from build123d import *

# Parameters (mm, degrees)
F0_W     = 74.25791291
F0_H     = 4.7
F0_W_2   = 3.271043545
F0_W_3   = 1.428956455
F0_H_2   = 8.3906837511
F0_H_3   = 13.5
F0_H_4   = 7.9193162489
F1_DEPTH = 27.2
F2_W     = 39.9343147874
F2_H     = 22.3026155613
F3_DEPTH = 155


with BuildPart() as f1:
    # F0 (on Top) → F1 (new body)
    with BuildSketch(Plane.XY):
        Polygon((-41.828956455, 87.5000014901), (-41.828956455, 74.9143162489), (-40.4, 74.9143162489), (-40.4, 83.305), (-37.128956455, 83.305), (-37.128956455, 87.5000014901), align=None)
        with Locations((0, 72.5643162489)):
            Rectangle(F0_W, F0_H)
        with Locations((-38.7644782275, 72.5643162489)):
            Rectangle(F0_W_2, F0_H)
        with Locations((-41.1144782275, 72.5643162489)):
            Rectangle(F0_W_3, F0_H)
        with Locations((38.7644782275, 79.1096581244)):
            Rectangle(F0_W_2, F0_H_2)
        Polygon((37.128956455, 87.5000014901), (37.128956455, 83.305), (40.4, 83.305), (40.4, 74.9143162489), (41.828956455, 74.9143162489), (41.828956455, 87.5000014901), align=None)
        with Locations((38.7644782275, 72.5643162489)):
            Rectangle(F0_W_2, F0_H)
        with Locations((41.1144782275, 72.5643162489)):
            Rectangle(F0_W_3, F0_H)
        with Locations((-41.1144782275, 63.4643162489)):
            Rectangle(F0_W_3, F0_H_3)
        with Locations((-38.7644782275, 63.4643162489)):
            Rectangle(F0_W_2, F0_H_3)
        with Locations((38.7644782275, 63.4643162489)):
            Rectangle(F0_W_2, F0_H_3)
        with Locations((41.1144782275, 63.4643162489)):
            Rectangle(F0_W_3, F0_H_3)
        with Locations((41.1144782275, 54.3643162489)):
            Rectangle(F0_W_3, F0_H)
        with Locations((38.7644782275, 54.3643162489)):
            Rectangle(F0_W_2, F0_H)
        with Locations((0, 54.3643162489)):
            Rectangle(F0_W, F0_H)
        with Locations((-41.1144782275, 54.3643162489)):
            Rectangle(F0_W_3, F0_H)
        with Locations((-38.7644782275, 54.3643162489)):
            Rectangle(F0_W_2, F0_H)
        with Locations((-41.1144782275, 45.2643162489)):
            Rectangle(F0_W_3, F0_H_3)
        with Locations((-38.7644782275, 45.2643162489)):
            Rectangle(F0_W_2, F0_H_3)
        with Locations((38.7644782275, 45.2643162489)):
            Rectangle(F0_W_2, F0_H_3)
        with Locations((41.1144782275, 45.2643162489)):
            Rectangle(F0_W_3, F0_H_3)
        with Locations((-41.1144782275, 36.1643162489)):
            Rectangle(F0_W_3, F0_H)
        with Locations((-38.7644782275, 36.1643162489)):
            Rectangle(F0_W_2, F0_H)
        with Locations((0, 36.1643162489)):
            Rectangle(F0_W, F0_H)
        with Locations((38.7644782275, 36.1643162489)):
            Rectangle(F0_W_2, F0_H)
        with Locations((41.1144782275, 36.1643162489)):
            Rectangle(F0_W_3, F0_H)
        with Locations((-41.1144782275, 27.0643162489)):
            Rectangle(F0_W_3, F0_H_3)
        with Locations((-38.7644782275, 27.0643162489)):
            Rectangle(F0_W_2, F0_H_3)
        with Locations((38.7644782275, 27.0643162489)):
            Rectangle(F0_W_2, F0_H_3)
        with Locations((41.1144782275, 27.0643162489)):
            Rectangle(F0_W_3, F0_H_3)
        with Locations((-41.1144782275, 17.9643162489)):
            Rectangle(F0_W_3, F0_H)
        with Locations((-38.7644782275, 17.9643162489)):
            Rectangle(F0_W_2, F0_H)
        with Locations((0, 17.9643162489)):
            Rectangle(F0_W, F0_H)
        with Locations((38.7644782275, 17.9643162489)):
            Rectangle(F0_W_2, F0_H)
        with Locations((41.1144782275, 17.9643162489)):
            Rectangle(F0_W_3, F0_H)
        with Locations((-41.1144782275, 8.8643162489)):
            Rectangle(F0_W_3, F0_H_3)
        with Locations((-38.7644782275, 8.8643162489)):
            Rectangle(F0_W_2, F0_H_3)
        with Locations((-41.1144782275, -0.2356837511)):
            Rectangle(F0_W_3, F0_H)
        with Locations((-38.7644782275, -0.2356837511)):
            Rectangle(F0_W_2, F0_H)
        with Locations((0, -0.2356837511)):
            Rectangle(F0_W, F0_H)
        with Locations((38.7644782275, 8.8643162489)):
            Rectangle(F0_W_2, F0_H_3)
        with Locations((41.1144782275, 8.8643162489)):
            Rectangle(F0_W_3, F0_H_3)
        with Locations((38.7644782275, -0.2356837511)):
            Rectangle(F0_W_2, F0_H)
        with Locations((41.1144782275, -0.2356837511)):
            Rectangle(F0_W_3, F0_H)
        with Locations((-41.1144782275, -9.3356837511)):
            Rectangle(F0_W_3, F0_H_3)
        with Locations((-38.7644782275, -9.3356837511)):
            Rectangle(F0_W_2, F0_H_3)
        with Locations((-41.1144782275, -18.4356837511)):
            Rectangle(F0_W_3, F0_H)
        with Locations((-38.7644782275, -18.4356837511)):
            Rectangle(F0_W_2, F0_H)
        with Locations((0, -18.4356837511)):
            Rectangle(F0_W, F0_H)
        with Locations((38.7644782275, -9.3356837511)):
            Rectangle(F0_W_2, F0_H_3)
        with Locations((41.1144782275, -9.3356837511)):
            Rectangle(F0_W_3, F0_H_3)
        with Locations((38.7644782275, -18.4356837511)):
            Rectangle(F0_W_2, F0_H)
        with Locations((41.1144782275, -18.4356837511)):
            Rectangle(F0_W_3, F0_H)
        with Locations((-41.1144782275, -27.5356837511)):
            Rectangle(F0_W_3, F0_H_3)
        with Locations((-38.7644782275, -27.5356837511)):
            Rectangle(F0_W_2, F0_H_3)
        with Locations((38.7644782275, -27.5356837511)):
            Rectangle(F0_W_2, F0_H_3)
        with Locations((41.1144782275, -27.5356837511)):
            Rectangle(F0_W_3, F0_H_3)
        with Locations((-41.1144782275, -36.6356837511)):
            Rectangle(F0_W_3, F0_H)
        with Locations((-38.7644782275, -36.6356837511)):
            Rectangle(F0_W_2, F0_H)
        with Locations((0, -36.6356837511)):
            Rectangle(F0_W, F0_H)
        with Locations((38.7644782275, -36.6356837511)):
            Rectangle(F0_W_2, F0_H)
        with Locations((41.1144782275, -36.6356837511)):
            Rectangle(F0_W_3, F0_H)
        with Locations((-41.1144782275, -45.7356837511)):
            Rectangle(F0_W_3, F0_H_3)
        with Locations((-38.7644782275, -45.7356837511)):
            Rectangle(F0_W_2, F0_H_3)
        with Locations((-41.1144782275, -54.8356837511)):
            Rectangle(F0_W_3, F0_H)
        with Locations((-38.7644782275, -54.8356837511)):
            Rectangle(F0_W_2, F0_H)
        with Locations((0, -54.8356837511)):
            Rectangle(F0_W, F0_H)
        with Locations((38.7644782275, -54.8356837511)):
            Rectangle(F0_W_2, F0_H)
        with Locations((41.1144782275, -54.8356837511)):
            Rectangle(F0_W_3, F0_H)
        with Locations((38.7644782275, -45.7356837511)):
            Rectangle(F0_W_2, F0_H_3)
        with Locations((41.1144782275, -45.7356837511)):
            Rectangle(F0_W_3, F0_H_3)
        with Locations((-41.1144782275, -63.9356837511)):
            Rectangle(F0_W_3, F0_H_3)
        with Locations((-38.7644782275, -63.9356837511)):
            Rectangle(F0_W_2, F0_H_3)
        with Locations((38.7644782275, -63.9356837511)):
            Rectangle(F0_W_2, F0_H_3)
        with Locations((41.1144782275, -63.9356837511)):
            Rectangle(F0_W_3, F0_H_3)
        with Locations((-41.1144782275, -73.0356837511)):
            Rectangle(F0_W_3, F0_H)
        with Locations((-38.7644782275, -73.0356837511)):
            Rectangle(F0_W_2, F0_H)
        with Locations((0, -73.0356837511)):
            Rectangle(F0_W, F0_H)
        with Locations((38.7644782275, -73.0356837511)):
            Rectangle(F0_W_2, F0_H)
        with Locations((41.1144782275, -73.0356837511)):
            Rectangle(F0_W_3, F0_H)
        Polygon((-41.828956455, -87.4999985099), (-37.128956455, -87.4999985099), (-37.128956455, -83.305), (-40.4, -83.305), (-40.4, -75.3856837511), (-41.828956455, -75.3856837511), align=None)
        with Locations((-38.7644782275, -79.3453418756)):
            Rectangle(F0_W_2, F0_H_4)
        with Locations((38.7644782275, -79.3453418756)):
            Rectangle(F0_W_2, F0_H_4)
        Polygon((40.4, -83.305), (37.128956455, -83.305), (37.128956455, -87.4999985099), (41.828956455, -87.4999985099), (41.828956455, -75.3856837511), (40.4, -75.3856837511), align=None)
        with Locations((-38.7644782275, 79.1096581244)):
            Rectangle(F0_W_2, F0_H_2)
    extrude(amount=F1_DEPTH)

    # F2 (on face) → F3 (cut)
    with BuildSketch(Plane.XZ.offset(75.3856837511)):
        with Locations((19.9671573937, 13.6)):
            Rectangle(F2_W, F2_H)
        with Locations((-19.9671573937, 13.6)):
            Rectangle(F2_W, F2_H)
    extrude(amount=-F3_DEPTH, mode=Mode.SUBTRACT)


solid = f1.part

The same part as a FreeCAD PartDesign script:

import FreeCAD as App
import Part
import Sketcher
Q = App.Units.Quantity


def add_polygon(sketch, points):
    """Adds a closed chain of lines whose ends are joined by coincident constraints."""
    first, n = sketch.GeometryCount, len(points)
    for a, b in zip(points, points[1:] + points[:1]):
        sketch.addGeometry(Part.LineSegment(App.Vector(*a, 0), App.Vector(*b, 0)), False)
    for i in range(n):
        sketch.addConstraint(Sketcher.Constraint("Coincident", first + i, 2, first + (i + 1) % n, 1))

doc = App.newDocument("Part")
params = doc.addObject("Spreadsheet::Sheet", "Params")
for row, (alias, value) in enumerate([
    ("sketch1_height", "175 mm"),
    ("sketch1_width", "4.7 mm"),
    ("sketch1_height2", "13.5 mm"),
    ("pad1_length", "27.2 mm"),
    ("pocket1_length", "155 mm"),
], start=1):
    params.set(f"A{row}", alias)
    params.set(f"B{row}", "=" + value)
    params.setAlias(f"B{row}", alias)

body = doc.addObject("PartDesign::Body", "Body")

sketch1 = doc.addObject("Sketcher::SketchObject", "Sketch")
body.addObject(sketch1)
sketch1.AttachmentSupport = (doc.XY_Plane, [""])
sketch1.MapMode = "FlatFace"
add_polygon(sketch1, [(-37.1, -75.4), (37.1, -75.4), (37.1, -87.5), (41.8, -87.5), (41.8, 87.5), (37.1, 87.5), (37.1, 74.9), (-37.1, 74.9), (-37.1, 87.5), (-41.8, 87.5), (-41.8, -87.5), (-37.1, -87.5)])
add_polygon(sketch1, [(37.1, -70.7), (-37.1, -70.7), (-37.1, -57.2), (37.1, -57.2)])
add_polygon(sketch1, [(-37.1, -39), (37.1, -39), (37.1, -52.5), (-37.1, -52.5)])
add_polygon(sketch1, [(37.1, -20.8), (37.1, -34.3), (-37.1, -34.3), (-37.1, -20.8)])
add_polygon(sketch1, [(37.1, -16.1), (-37.1, -16.1), (-37.1, -2.6), (37.1, -2.6)])
add_polygon(sketch1, [(37.1, 2.1), (-37.1, 2.1), (-37.1, 15.6), (37.1, 15.6)])
add_polygon(sketch1, [(37.1, 33.8), (37.1, 20.3), (-37.1, 20.3), (-37.1, 33.8)])
add_polygon(sketch1, [(37.1, 52), (37.1, 38.5), (-37.1, 38.5), (-37.1, 52)])
add_polygon(sketch1, [(37.1, 56.7), (-37.1, 56.7), (-37.1, 70.2), (37.1, 70.2)])
sketch1.addConstraint([
    Sketcher.Constraint("Horizontal", 0),
    Sketcher.Constraint("Vertical", 1),
    Sketcher.Constraint("Horizontal", 2),
    Sketcher.Constraint("Vertical", 3),
    Sketcher.Constraint("Horizontal", 4),
    Sketcher.Constraint("Vertical", 5),
    Sketcher.Constraint("Horizontal", 6),
    Sketcher.Constraint("Vertical", 7),
    Sketcher.Constraint("Horizontal", 8),
    Sketcher.Constraint("Vertical", 9),
    Sketcher.Constraint("Horizontal", 10),
    Sketcher.Constraint("Vertical", 11),
    Sketcher.Constraint("Horizontal", 12),
    Sketcher.Constraint("Vertical", 13),
    Sketcher.Constraint("Horizontal", 14),
    Sketcher.Constraint("Vertical", 15),
    Sketcher.Constraint("Horizontal", 16),
    Sketcher.Constraint("Vertical", 17),
    Sketcher.Constraint("Horizontal", 18),
    Sketcher.Constraint("Vertical", 19),
    Sketcher.Constraint("Vertical", 20),
    Sketcher.Constraint("Horizontal", 21),
    Sketcher.Constraint("Vertical", 22),
    Sketcher.Constraint("Horizontal", 23),
    Sketcher.Constraint("Horizontal", 24),
    Sketcher.Constraint("Vertical", 25),
    Sketcher.Constraint("Horizontal", 26),
    Sketcher.Constraint("Vertical", 27),
    Sketcher.Constraint("Horizontal", 28),
    Sketcher.Constraint("Vertical", 29),
    Sketcher.Constraint("Horizontal", 30),
    Sketcher.Constraint("Vertical", 31),
    Sketcher.Constraint("Vertical", 32),
    Sketcher.Constraint("Horizontal", 33),
    Sketcher.Constraint("Vertical", 34),
    Sketcher.Constraint("Horizontal", 35),
    Sketcher.Constraint("Vertical", 36),
    Sketcher.Constraint("Horizontal", 37),
    Sketcher.Constraint("Vertical", 38),
    Sketcher.Constraint("Horizontal", 39),
    Sketcher.Constraint("Horizontal", 40),
    Sketcher.Constraint("Vertical", 41),
    Sketcher.Constraint("Horizontal", 42),
    Sketcher.Constraint("Vertical", 43),
    Sketcher.Constraint("Symmetric", 1, 2, 7, 2, -1, 1),
    Sketcher.Constraint("Symmetric", 3, 2, 9, 2, -1, 1),
    Sketcher.Constraint("Symmetric", 4, 2, 7, 2, -2),
    Sketcher.Constraint("Vertical", 7, 2, 10, 2),
    Sketcher.Constraint("Vertical", 11, 2, 12, 2),
    Sketcher.Constraint("Vertical", 5, 2, 14, 2),
    Sketcher.Constraint("Vertical", 15, 2, 16, 2),
    Sketcher.Constraint("Vertical", 13, 2, 18, 2),
    Sketcher.Constraint("Vertical", 17, 2, 20, 2),
    Sketcher.Constraint("Vertical", 19, 2, 21, 2),
    Sketcher.Constraint("Vertical", 22, 2, 24, 2),
    Sketcher.Constraint("Vertical", 23, 2, 26, 2),
    Sketcher.Constraint("Vertical", 25, 2, 28, 2),
    Sketcher.Constraint("Vertical", 27, 2, 30, 2),
    Sketcher.Constraint("Vertical", 31, 2, 32, 2),
    Sketcher.Constraint("Vertical", 29, 2, 33, 2),
    Sketcher.Constraint("Vertical", 35, 2, 36, 2),
    Sketcher.Constraint("Vertical", 34, 2, 37, 2),
    Sketcher.Constraint("Vertical", 38, 2, 40, 2),
    Sketcher.Constraint("Vertical", 39, 2, 42, 2),
    Sketcher.Constraint("Equal", 15, 17),
    Sketcher.Constraint("Equal", 19, 20),
    Sketcher.Constraint("Equal", 22, 25),
    Sketcher.Constraint("Equal", 27, 29),
    Sketcher.Constraint("Equal", 31, 32),
    Sketcher.Constraint("Equal", 34, 36),
    Sketcher.Constraint("Equal", 38, 41),
    Sketcher.Constraint("DistanceY", 3, 1, 3, 2, Q("175 mm")),
    Sketcher.Constraint("DistanceX", 2, 1, 2, 2, Q("4.7 mm")),
    Sketcher.Constraint("DistanceY", 13, 1, 13, 2, Q("13.5 mm")),
    Sketcher.Constraint("DistanceY", 0, 2, 5, 2, Q("150.3 mm")),
    Sketcher.Constraint("DistanceY", 11, 2, 12, 2, Q("4.7 mm")),
    Sketcher.Constraint("DistanceY", 14, 2, 16, 2, Q("18.2 mm")),
    Sketcher.Constraint("DistanceY", 16, 2, 20, 2, Q("4.7 mm")),
    Sketcher.Constraint("DistanceY", 22, 2, 24, 2, Q("4.7 mm")),
    Sketcher.Constraint("DistanceY", 25, 2, 28, 2, Q("4.7 mm")),
    Sketcher.Constraint("DistanceY", 30, 2, 32, 2, Q("4.7 mm")),
    Sketcher.Constraint("DistanceY", 35, 2, 36, 2, Q("4.7 mm")),
    Sketcher.Constraint("DistanceY", 38, 2, 40, 2, Q("4.7 mm")),
    Sketcher.Constraint("DistanceX", 0, 1, 0, 2, Q("74.257913 mm")),
    Sketcher.Constraint("DistanceY", 1, 2, 1, 1, Q("12.114315 mm")),
])
sketch1.setExpression("Constraints[115]", "Params.sketch1_height")
sketch1.setExpression("Constraints[116]", "Params.sketch1_width")
sketch1.setExpression("Constraints[117]", "Params.sketch1_height2")
pad1 = doc.addObject("PartDesign::Pad", "Pad")
body.addObject(pad1)
pad1.Profile = sketch1
pad1.setExpression("Length", "Params.pad1_length")

sketch2 = doc.addObject("Sketcher::SketchObject", "Sketch001")
body.addObject(sketch2)
sketch2.AttachmentSupport = (doc.XZ_Plane, [""])
sketch2.MapMode = "FlatFace"
sketch2.AttachmentOffset = App.Placement(App.Vector(0, 0, 75.385684), App.Rotation())
add_polygon(sketch2, [(40, 2), (40, 25), (-40, 25), (-40, 2)])
sketch2.addConstraint([
    Sketcher.Constraint("Vertical", 0),
    Sketcher.Constraint("Horizontal", 1),
    Sketcher.Constraint("Vertical", 2),
    Sketcher.Constraint("Horizontal", 3),
    Sketcher.Constraint("DistanceX", 1, 2, 1, 1, Q("79.86863 mm")),
    Sketcher.Constraint("DistanceY", 0, 1, 0, 2, Q("22.302616 mm")),
    Sketcher.Constraint("DistanceX", -1, 1, 0, 2, Q("39.934315 mm")),
    Sketcher.Constraint("DistanceY", -1, 1, 0, 2, Q("24.751308 mm")),
])
pocket1 = doc.addObject("PartDesign::Pocket", "Pocket")
body.addObject(pocket1)
pocket1.Profile = sketch2
pocket1.setExpression("Length", "Params.pocket1_length")

doc.recompute()
